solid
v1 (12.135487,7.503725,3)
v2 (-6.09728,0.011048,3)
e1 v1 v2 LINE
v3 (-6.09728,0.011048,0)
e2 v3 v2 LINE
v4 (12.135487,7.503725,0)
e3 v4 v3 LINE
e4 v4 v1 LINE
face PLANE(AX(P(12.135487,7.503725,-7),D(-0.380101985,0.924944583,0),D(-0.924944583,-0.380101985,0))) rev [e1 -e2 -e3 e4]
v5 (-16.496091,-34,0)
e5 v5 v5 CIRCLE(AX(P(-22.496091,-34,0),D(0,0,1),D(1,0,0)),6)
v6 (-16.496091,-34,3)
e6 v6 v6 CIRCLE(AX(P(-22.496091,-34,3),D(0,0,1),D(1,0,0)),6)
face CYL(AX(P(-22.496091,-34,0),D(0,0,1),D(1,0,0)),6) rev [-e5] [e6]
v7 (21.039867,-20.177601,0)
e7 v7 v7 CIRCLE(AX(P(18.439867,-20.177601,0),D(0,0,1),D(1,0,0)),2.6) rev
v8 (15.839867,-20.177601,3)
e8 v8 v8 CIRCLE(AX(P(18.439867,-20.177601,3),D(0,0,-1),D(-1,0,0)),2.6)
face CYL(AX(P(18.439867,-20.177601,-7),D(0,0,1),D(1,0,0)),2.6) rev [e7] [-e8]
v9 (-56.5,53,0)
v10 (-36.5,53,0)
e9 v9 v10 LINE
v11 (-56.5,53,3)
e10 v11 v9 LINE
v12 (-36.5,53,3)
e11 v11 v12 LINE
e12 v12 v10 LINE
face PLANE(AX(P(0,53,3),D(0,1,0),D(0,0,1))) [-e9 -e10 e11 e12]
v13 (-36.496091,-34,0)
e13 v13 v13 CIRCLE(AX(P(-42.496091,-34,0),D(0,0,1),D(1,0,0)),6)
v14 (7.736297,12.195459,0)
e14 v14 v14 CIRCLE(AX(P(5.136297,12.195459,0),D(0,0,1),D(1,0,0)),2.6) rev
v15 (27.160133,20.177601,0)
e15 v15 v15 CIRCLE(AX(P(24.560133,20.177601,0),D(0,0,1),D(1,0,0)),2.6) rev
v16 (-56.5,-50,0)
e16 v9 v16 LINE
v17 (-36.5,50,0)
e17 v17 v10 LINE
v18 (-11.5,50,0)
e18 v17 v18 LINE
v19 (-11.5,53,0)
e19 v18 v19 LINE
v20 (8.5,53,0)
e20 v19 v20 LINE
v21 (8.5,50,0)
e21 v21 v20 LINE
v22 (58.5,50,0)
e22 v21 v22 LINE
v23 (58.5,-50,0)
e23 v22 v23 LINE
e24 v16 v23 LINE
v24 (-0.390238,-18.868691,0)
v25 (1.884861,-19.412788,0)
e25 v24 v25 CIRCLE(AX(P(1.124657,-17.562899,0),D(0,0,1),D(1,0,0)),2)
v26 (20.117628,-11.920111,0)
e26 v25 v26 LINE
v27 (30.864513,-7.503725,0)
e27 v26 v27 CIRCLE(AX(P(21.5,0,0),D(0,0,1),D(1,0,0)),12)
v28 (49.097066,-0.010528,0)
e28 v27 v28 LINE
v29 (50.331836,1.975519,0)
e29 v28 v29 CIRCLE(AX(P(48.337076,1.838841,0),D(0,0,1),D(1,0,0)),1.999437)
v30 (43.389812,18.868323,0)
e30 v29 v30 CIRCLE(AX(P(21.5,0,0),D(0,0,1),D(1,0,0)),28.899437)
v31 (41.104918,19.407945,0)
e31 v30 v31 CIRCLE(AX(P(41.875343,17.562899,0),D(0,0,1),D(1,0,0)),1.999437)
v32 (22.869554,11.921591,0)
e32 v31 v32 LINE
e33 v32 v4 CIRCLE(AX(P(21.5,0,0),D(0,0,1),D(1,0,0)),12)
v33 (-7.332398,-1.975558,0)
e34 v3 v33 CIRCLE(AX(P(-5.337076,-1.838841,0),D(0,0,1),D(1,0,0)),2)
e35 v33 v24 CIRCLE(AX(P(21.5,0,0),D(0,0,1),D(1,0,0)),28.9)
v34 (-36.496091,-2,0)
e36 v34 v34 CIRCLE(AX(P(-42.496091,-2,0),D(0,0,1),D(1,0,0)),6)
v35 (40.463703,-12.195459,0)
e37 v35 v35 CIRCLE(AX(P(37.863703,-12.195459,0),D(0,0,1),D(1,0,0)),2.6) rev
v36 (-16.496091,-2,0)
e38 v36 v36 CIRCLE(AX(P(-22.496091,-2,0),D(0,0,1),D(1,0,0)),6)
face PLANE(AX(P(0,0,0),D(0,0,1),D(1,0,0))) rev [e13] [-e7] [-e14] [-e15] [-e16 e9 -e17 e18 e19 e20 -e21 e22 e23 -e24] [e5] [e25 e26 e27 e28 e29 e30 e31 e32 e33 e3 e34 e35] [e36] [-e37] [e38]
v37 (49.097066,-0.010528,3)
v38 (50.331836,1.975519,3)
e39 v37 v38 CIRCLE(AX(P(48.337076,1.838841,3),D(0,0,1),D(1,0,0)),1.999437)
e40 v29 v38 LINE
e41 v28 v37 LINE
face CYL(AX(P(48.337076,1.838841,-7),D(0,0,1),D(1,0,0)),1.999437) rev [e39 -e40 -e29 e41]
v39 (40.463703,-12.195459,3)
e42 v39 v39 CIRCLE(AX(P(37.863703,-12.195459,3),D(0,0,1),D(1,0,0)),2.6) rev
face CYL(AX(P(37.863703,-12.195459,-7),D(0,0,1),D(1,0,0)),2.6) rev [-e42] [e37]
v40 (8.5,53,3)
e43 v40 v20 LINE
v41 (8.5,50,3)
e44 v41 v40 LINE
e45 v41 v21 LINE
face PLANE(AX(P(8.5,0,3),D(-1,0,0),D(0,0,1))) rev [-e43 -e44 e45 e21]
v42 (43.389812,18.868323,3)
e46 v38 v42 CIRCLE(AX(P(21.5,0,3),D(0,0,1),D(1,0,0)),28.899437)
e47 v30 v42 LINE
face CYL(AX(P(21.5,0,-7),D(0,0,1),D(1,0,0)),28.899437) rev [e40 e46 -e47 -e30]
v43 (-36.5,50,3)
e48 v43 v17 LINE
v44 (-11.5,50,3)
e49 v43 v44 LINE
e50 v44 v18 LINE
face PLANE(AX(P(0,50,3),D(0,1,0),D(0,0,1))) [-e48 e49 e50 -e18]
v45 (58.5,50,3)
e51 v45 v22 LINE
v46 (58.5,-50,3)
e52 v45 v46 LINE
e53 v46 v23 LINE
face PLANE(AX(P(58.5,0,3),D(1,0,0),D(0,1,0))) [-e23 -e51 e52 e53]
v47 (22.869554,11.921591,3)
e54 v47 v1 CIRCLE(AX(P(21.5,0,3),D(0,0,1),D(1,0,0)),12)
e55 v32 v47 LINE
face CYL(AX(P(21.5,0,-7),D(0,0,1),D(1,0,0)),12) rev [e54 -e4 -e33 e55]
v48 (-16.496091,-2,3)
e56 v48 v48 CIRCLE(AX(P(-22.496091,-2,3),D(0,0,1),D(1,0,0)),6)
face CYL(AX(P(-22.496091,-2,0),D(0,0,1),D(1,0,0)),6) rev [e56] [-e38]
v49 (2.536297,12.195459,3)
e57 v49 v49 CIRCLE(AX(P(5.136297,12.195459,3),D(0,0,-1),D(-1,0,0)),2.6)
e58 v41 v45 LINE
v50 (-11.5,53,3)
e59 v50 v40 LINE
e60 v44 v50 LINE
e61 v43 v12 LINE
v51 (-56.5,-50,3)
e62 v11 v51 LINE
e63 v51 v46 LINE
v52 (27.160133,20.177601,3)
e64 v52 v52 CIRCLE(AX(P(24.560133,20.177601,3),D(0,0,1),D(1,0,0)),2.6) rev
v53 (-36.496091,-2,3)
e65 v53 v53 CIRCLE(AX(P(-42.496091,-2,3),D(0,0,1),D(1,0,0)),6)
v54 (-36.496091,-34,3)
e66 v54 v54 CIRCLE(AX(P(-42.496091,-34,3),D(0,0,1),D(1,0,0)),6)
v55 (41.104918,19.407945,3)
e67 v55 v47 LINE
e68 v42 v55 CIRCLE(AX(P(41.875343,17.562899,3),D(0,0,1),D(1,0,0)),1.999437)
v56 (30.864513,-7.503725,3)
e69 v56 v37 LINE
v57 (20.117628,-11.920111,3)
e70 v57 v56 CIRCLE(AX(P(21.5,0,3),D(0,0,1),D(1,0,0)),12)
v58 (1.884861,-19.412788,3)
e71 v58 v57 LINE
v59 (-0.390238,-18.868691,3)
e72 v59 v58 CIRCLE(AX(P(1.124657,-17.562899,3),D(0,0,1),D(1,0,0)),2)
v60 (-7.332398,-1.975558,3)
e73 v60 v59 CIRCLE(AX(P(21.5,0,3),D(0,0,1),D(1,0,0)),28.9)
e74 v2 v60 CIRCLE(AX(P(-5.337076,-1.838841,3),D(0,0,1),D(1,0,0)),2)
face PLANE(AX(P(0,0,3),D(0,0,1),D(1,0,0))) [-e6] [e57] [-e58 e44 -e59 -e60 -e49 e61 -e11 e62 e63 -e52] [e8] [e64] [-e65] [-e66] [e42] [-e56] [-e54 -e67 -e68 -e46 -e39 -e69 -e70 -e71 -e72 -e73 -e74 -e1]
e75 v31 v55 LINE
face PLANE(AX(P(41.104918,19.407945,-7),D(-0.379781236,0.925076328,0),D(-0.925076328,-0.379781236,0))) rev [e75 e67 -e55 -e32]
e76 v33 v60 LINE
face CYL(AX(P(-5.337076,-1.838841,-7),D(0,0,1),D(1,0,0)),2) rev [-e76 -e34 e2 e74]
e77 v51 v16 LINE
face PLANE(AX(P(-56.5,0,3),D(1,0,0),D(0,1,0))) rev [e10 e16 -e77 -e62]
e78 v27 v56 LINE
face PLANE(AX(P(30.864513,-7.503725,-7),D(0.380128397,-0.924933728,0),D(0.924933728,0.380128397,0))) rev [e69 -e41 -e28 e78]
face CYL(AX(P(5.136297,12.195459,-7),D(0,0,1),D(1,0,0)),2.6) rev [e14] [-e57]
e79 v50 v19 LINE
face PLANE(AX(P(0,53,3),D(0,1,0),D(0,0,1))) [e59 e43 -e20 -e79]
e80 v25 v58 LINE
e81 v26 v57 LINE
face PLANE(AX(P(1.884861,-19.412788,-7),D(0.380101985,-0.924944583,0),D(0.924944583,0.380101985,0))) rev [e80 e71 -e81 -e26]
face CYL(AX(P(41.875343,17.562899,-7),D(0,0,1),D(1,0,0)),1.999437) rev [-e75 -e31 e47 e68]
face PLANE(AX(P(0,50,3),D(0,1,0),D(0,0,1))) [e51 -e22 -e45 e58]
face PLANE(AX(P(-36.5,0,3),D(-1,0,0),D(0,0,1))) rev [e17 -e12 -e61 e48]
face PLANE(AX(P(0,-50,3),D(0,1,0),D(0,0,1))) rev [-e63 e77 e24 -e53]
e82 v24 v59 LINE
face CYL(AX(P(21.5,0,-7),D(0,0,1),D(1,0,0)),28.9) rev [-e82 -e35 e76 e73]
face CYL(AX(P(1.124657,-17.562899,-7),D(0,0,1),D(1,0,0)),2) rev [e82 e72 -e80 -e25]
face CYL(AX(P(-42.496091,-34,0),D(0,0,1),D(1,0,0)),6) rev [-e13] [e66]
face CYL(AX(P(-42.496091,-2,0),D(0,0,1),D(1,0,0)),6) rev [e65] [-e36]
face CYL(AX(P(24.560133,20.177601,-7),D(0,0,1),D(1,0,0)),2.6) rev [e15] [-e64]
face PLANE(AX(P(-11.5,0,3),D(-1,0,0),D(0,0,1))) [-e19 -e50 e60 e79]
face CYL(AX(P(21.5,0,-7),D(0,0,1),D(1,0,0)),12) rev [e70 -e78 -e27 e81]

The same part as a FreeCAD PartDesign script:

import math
import FreeCAD as App
import Part
import Sketcher

V = App.Vector
Q = App.Units.Quantity


def add_polygon(sketch, points):
    """Adds a closed chain of lines whose ends are joined by coincident constraints."""
    first, n = sketch.GeometryCount, len(points)
    for a, b in zip(points, points[1:] + points[:1]):
        sketch.addGeometry(Part.LineSegment(App.Vector(*a, 0), App.Vector(*b, 0)), False)
    for i in range(n):
        sketch.addConstraint(Sketcher.Constraint("Coincident", first + i, 2, first + (i + 1) % n, 1))

doc = App.newDocument("Part")
params = doc.addObject("Spreadsheet::Sheet", "Params")
for row, (alias, value) in enumerate([
    ("sketch1_width", "115 mm"),
    ("sketch1_width2", "50 mm"),
    ("sketch1_width3", "20 mm"),
    ("sketch1_height", "100 mm"),
    ("sketch1_height2", "3 mm"),
    ("pad1_length", "3 mm"),
    ("sketch2_diameter", "12 mm"),
    ("pocket1_length", "3 mm"),
    ("sketch3_radius", "12 mm"),
    ("sketch3_radius2", "2 mm"),
    ("sketch3_diameter", "5.2 mm"),
    ("sketch3_radius3", "28.9 mm"),
    ("pocket2_length", "10 mm"),
], start=1):
    params.set(f"A{row}", alias)
    params.set(f"B{row}", "=" + value)
    params.setAlias(f"B{row}", alias)

body = doc.addObject("PartDesign::Body", "Body")

# Sketch on XY plane
sketch1 = body.newObject("Sketcher::SketchObject", "Sketch")
sketch1.AttachmentSupport = (doc.getObject("XY_Plane"), [""])
sketch1.MapMode = "FlatFace"
add_polygon(sketch1, [(-56.5, -50), (58.5, -50), (58.5, 50), (8.5, 50), (8.5, 53), (-11.5, 53), (-11.5, 50), (-36.5, 50), (-36.5, 53), (-56.5, 53)])  # lines 0-9
sketch1.addConstraint([
    Sketcher.Constraint("Horizontal", 0),
    Sketcher.Constraint("Vertical", 1),
    Sketcher.Constraint("Horizontal", 2),
    Sketcher.Constraint("Vertical", 3),
    Sketcher.Constraint("Horizontal", 4),
    Sketcher.Constraint("Vertical", 5),
    Sketcher.Constraint("Horizontal", 6),
    Sketcher.Constraint("Vertical", 7),
    Sketcher.Constraint("Horizontal", 8),
    Sketcher.Constraint("Vertical", 9),
    Sketcher.Constraint("Horizontal", 2, 2, 5, 2),
    Sketcher.Constraint("Horizontal", 4, 2, 7, 2),
    Sketcher.Constraint("Equal", 4, 8),
    Sketcher.Constraint("DistanceX", 0, 1, 0, 2, 115.0),
    Sketcher.Constraint("DistanceX", 2, 2, 2, 1, 50.0),
    Sketcher.Constraint("DistanceX", 4, 2, 4, 1, 20.0),
    Sketcher.Constraint("DistanceY", 1, 1, 1, 2, 100.0),
    Sketcher.Constraint("DistanceY", 3, 1, 3, 2, 3.0),
    Sketcher.Constraint("DistanceY", 0, 2, -1, 1, 50.0),
    Sketcher.Constraint("DistanceX", -1, 1, 0, 2, 58.5),
])
sketch1.setExpression("Constraints[23]", "Params.sketch1_width")
sketch1.setExpression("Constraints[24]", "Params.sketch1_width2")
sketch1.setExpression("Constraints[25]", "Params.sketch1_width3")
sketch1.setExpression("Constraints[26]", "Params.sketch1_height")
sketch1.setExpression("Constraints[27]", "Params.sketch1_height2")
pad1 = body.newObject("PartDesign::Pad", "Pad")
pad1.Profile = sketch1
pad1.setExpression("Length", "Params.pad1_length")

# Sketch on XY plane
sketch2 = body.newObject("Sketcher::SketchObject", "Sketch001")
sketch2.AttachmentSupport = (doc.getObject("XY_Plane"), [""])
sketch2.MapMode = "FlatFace"
sketch2.AttachmentOffset = App.Placement(V(0, 0, 3), App.Rotation())
sketch2.addGeometry([
    Part.Circle(V(-42, -34, 0), V(0, 0, 1), 6),
    Part.Circle(V(-42, -2, 0), V(0, 0, 1), 6),
    Part.Circle(V(-22, -34, 0), V(0, 0, 1), 6),
    Part.Circle(V(-22, -2, 0), V(0, 0, 1), 6),
], False)
sketch2.addConstraint([
    Sketcher.Constraint("Equal", 0, 1),
    Sketcher.Constraint("Equal", 1, 2),
    Sketcher.Constraint("Equal", 2, 3),
    Sketcher.Constraint("Horizontal", 0, 3, 2, 3),
    Sketcher.Constraint("Horizontal", 1, 3, 3, 3),
    Sketcher.Constraint("Vertical", 0, 3, 1, 3),
    Sketcher.Constraint("Vertical", 2, 3, 3, 3),
    Sketcher.Constraint("Diameter", 0, 12.0),
    Sketcher.Constraint("DistanceY", 0, 3, -1, 1, 34.0),
    Sketcher.Constraint("DistanceY", 1, 3, -1, 1, 2.0),
    Sketcher.Constraint("DistanceX", 0, 3, 2, 3, 20.0),
    Sketcher.Constraint("DistanceX", 0, 3, -1, 1, 42.496091),
])
sketch2.setExpression("Constraints[7]", "Params.sketch2_diameter")
pocket1 = body.newObject("PartDesign::Pocket", "Pocket")
pocket1.Profile = sketch2
pocket1.setExpression("Length", "Params.pocket1_length")

# Sketch on XY plane
sketch3 = body.newObject("Sketcher::SketchObject", "Sketch002")
sketch3.AttachmentSupport = (doc.getObject("XY_Plane"), [""])
sketch3.MapMode = "FlatFace"
sketch3.AttachmentOffset = App.Placement(V(0, 0, 3), App.Rotation())
sketch3.addGeometry([
    Part.Circle(V(24.6, 20.2, 0), V(0, 0, 1), 2.6),  # 0
    Part.Circle(V(37.9, -12.2, 0), V(0, 0, 1), 2.6),  # 1
    Part.LineSegment(V(1.9, -19.4, 0), V(20.1, -11.9, 0)),  # 2
    Part.ArcOfCircle(Part.Circle(V(21.5, 0, 0), V(0, 0, 1), 12), math.radians(-97), math.radians(-39)),  # 3
    Part.LineSegment(V(30.9, -7.5, 0), V(49.1, 0, 0)),  # 4
    Part.ArcOfCircle(Part.Circle(V(48.3, 1.8, 0), V(0, 0, 1), 2), math.radians(-68), math.radians(4)),  # 5
    Part.ArcOfCircle(Part.Circle(V(21.5, 0, 0), V(0, 0, 1), 28.9), math.radians(4), math.radians(41)),  # 6
    Part.ArcOfCircle(Part.Circle(V(41.9, 17.6, 0), V(0, 0, 1), 2), math.radians(41), math.radians(113)),  # 7
    Part.LineSegment(V(41.1, 19.4, 0), V(22.9, 11.9, 0)),  # 8
    Part.ArcOfCircle(Part.Circle(V(21.5, 0, 0), V(0, 0, 1), 12), math.radians(83), math.radians(141)),  # 9
    Part.LineSegment(V(12.1, 7.5, 0), V(-6.1, 0, 0)),  # 10
    Part.ArcOfCircle(Part.Circle(V(-5.3, -1.8, 0), V(0, 0, 1), 2), math.radians(112), math.radians(184)),  # 11
    Part.ArcOfCircle(Part.Circle(V(21.5, 0, 0), V(0, 0, 1), 28.9), math.radians(-176), math.radians(-139)),  # 12
    Part.ArcOfCircle(Part.Circle(V(1.1, -17.6, 0), V(0, 0, 1), 2), math.radians(-139), math.radians(-68)),  # 13
    Part.Circle(V(18.4, -20.2, 0), V(0, 0, 1), 2.6),  # 14
    Part.Circle(V(5.1, 12.2, 0), V(0, 0, 1), 2.6),  # 15
], False)
sketch3.addConstraint([
    Sketcher.Constraint("Coincident", 2, 2, 3, 1),
    Sketcher.Constraint("Coincident", 3, 2, 4, 1),
    Sketcher.Constraint("Coincident", 4, 2, 5, 1),
    Sketcher.Constraint("Tangent", 5, 2, 6, 1),
    Sketcher.Constraint("Tangent", 6, 2, 7, 1),
    Sketcher.Constraint("Coincident", 7, 2, 8, 1),
    Sketcher.Constraint("Coincident", 8, 2, 9, 1),
    Sketcher.Constraint("Coincident", 9, 2, 10, 1),
    Sketcher.Constraint("Tangent", 10, 2, 11, 1),
    Sketcher.Constraint("Tangent", 11, 2, 12, 1),
    Sketcher.Constraint("Tangent", 12, 2, 13, 1),
    Sketcher.Constraint("Tangent", 13, 2, 2, 1),
    Sketcher.Constraint("Coincident", 6, 3, 3, 3),
    Sketcher.Constraint("Coincident", 9, 3, 3, 3),
    Sketcher.Constraint("Coincident", 12, 3, 3, 3),
    Sketcher.Constraint("Equal", 0, 1),
    Sketcher.Constraint("Equal", 5, 7),
    Sketcher.Constraint("Equal", 3, 9),
    Sketcher.Constraint("Equal", 11, 13),
    Sketcher.Constraint("Equal", 1, 14),
    Sketcher.Constraint("Equal", 14, 15),
    Sketcher.Constraint("PointOnObject", 3, 3, -1),
    Sketcher.Constraint("Parallel", 2, 10),
    Sketcher.Constraint("Equal", 2, 4),
    Sketcher.Constraint("Equal", 4, 8),
    Sketcher.Constraint("Equal", 8, 10),
    Sketcher.Constraint("Radius", 3, 12.0),
    Sketcher.Constraint("Radius", 11, 2.0),
    Sketcher.Constraint("Diameter", 0, 5.2),
    Sketcher.Constraint("Radius", 12, 28.9),
    Sketcher.Constraint("DistanceX", -1, 1, 3, 3, 21.5),
    Sketcher.Constraint("Angle", 2, Q("22.34 deg")),
    Sketcher.Constraint("Radius", 5, 1.999437),
    Sketcher.Constraint("Radius", 6, 28.899437),
    Sketcher.Constraint("DistanceY", -1, 1, 0, 3, 20.177601),
    Sketcher.Constraint("DistanceY", -1, 1, 7, 3, 17.562899),
    Sketcher.Constraint("DistanceY", 13, 3, -1, 1, 17.562899),
    Sketcher.Constraint("DistanceY", 14, 3, -1, 1, 20.177601),
    Sketcher.Constraint("DistanceY", 1, 3, 5, 3, 14.0343),
    Sketcher.Constraint("DistanceY", 11, 3, 15, 3, 14.0343),
    Sketcher.Constraint("DistanceY", 1, 3, -1, 1, 12.195459),
    Sketcher.Constraint("DistanceY", -1, 1, 8, 2, 11.921591),
    Sketcher.Constraint("DistanceX", 0, 3, 1, 3, 13.303569),
    Sketcher.Constraint("DistanceX", 0, 3, 7, 3, 17.315209),
    Sketcher.Constraint("DistanceX", 13, 3, 14, 3, 17.315209),
    Sketcher.Constraint("DistanceX", 3, 2, 1, 3, 6.99919),
    Sketcher.Constraint("DistanceX", 15, 3, 9, 2, 6.99919),
])
sketch3.setExpression("Constraints[26]", "Params.sketch3_radius")
sketch3.setExpression("Constraints[27]", "Params.sketch3_radius2")
sketch3.setExpression("Constraints[28]", "Params.sketch3_diameter")
sketch3.setExpression("Constraints[29]", "Params.sketch3_radius3")
pocket2 = body.newObject("PartDesign::Pocket", "Pocket001")
pocket2.Profile = sketch3
pocket2.setExpression("Length", "Params.pocket2_length")

doc.recompute()
